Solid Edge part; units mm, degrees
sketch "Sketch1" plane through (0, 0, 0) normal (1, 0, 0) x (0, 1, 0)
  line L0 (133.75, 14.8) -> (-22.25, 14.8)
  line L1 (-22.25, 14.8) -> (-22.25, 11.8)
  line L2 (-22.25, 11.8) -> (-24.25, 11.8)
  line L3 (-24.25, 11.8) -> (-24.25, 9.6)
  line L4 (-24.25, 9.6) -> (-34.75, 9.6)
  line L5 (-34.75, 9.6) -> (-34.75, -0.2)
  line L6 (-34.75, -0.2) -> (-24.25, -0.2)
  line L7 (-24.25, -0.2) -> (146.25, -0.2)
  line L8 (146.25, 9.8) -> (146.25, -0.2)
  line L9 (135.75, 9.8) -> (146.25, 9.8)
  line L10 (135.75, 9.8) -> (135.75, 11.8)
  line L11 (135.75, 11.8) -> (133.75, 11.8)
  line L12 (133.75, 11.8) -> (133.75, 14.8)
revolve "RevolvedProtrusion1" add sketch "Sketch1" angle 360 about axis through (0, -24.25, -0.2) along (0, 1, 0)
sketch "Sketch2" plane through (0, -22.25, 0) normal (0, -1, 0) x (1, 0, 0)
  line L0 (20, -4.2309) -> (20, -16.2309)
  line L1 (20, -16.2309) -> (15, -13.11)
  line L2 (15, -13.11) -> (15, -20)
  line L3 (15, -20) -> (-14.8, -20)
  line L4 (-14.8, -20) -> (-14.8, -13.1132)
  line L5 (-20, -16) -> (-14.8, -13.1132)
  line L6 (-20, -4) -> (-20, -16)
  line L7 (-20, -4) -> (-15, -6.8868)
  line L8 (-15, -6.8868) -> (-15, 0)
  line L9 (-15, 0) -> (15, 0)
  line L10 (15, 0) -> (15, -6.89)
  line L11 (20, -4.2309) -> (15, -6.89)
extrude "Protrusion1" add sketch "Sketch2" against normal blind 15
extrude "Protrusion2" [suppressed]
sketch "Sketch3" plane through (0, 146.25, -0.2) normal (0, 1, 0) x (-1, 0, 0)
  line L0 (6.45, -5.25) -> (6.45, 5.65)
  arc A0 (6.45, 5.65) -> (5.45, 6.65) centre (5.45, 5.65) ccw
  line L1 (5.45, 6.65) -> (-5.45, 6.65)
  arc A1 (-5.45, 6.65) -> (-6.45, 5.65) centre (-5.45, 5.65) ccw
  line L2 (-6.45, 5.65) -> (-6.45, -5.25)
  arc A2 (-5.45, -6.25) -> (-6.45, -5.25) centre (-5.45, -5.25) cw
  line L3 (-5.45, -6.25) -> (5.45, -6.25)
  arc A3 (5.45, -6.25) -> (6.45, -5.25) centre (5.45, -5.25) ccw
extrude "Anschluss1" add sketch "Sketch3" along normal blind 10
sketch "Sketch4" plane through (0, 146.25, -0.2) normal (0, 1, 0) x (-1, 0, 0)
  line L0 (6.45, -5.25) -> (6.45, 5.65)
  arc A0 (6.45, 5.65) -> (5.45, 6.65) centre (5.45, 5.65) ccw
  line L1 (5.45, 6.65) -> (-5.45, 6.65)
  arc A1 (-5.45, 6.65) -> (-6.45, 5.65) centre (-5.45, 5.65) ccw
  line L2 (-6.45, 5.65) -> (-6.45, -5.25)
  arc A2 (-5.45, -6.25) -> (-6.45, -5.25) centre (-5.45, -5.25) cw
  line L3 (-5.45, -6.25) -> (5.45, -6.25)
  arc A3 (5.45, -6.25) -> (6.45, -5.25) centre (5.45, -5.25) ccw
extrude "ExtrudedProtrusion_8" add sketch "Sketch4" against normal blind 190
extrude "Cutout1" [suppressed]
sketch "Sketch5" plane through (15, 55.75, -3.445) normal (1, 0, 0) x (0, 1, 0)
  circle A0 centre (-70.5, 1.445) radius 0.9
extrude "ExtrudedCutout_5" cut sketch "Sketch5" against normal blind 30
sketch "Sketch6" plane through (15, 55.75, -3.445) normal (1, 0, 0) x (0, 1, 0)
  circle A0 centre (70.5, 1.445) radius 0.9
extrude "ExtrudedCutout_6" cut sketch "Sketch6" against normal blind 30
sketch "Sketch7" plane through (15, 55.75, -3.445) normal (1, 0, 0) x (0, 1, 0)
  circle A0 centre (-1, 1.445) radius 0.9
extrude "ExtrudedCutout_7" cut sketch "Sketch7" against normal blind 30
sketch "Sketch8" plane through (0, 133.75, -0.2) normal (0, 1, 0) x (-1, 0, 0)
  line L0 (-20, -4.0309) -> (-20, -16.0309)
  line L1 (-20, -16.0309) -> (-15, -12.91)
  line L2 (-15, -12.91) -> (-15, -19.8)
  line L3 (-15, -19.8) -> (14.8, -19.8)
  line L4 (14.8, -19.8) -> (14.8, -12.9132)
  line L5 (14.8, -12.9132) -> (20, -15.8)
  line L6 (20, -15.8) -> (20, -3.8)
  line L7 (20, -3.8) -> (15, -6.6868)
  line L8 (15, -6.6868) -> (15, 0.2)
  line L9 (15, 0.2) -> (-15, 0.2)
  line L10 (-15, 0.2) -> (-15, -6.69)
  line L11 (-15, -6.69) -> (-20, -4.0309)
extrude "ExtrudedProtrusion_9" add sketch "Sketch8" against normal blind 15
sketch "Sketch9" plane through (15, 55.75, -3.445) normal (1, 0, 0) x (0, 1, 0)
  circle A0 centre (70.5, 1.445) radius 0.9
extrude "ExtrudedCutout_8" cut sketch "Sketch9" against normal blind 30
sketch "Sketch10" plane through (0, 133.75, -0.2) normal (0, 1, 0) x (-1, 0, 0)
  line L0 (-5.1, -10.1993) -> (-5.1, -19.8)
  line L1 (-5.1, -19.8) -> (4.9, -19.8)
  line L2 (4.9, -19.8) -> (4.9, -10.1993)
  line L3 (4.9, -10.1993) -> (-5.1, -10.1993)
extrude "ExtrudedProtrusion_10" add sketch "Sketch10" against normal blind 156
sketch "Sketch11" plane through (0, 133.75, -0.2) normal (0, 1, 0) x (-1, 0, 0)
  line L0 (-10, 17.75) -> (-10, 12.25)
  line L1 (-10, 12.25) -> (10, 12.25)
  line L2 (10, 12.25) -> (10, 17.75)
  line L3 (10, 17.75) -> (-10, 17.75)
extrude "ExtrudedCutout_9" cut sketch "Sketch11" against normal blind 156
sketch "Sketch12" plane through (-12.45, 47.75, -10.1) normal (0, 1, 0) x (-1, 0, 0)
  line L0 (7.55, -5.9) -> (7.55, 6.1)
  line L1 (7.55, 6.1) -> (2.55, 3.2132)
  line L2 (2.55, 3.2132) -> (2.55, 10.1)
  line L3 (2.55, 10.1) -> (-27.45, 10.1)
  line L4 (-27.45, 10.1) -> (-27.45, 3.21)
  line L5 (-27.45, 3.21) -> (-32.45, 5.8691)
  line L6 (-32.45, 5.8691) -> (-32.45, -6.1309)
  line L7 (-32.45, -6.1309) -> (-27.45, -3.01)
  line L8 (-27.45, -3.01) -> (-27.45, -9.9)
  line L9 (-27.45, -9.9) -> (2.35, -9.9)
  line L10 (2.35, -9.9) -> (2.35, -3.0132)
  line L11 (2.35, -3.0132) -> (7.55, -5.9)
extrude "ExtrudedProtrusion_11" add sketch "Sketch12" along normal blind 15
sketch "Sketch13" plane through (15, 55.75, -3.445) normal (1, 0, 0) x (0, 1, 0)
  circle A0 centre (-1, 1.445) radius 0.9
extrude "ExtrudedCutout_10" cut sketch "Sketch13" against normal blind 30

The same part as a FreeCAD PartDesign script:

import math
import FreeCAD as App
import Part
import Sketcher

V = App.Vector
Q = App.Units.Quantity


def add_polygon(sketch, points):
    """Adds a closed chain of lines whose ends are joined by coincident constraints."""
    first, n = sketch.GeometryCount, len(points)
    for a, b in zip(points, points[1:] + points[:1]):
        sketch.addGeometry(Part.LineSegment(App.Vector(*a, 0), App.Vector(*b, 0)), False)
    for i in range(n):
        sketch.addConstraint(Sketcher.Constraint("Coincident", first + i, 2, first + (i + 1) % n, 1))

doc = App.newDocument("Part")
body = doc.addObject("PartDesign::Body", "Body")

# Sketch on YZ plane
sketch1 = doc.addObject("Sketcher::SketchObject", "Sketch")
body.addObject(sketch1)
sketch1.AttachmentSupport = (doc.YZ_Plane, [""])
sketch1.MapMode = "FlatFace"
add_polygon(sketch1, [(133.8, 11.8), (133.8, 14.8), (-22.2, 14.8), (-22.2, 11.8), (-24.2, 11.8), (-24.2, 9.6), (-34.8, 9.6), (-34.8, -0.2), (146.2, -0.2), (146.2, 9.8), (135.8, 9.8), (135.8, 11.8)])  # lines 0-11
sketch1.addGeometry(Part.LineSegment(V(-34.8, -0.2, 0), V(146.2, -0.2, 0)), True)  # axis
sketch1.addConstraint(Sketcher.Constraint("Vertical", 0))
sketch1.addConstraint(Sketcher.Constraint("Horizontal", 1))
sketch1.addConstraint(Sketcher.Constraint("Vertical", 2))
sketch1.addConstraint(Sketcher.Constraint("Horizontal", 3))
sketch1.addConstraint(Sketcher.Constraint("Vertical", 4))
sketch1.addConstraint(Sketcher.Constraint("Horizontal", 5))
sketch1.addConstraint(Sketcher.Constraint("Vertical", 6))
sketch1.addConstraint(Sketcher.Constraint("Horizontal", 7))
sketch1.addConstraint(Sketcher.Constraint("Vertical", 8))
sketch1.addConstraint(Sketcher.Constraint("Horizontal", 9))
sketch1.addConstraint(Sketcher.Constraint("Vertical", 10))
sketch1.addConstraint(Sketcher.Constraint("Horizontal", 11))
sketch1.addConstraint(Sketcher.Constraint("Horizontal", 12))
sketch1.addConstraint(Sketcher.Constraint("Coincident", 12, 1, 6, 2))
sketch1.addConstraint(Sketcher.Constraint("Horizontal", 3, 2, 10, 2))
sketch1.addConstraint(Sketcher.Constraint("Vertical", 8, 2, 12, 2))
sketch1.addConstraint(Sketcher.Constraint("Equal", 5, 9))
sketch1.addConstraint(Sketcher.Constraint("Equal", 3, 11))
sketch1.addConstraint(Sketcher.Constraint("Equal", 11, 10))
sketch1.addConstraint(Sketcher.Constraint("DistanceX", 1, 2, 1, 1, 156.0))
sketch1.addConstraint(Sketcher.Constraint("DistanceX", 3, 2, 3, 1, 2.0))
sketch1.addConstraint(Sketcher.Constraint("DistanceX", 7, 1, 7, 2, 181.0))
sketch1.addConstraint(Sketcher.Constraint("DistanceY", 0, 1, 0, 2, 3.0))
sketch1.addConstraint(Sketcher.Constraint("DistanceY", 8, 1, 8, 2, 10.0))
sketch1.addConstraint(Sketcher.Constraint("DistanceY", 4, 2, 4, 1, 2.2))
sketch1.addConstraint(Sketcher.Constraint("DistanceY", -1, 1, 0, 2, 14.8))
sketch1.addConstraint(Sketcher.Constraint("DistanceX", -1, 1, 0, 2, 133.75))
revolution = doc.addObject("PartDesign::Revolution", "Revolution")
body.addObject(revolution)
revolution.Profile = sketch1
revolution.ReferenceAxis = (sketch1, ["Axis0"])
revolution.Angle = 360

# Sketch on XZ plane
sketch2 = doc.addObject("Sketcher::SketchObject", "Sketch001")
body.addObject(sketch2)
sketch2.AttachmentSupport = (doc.XZ_Plane, [""])
sketch2.MapMode = "FlatFace"
sketch2.AttachmentOffset = App.Placement(V(0, 0, 22.25), App.Rotation())
add_polygon(sketch2, [(20, -16), (20, -4), (15, -7), (15, 0), (-15, 0), (-15, -7), (-20, -4), (-20, -16), (-15, -13), (-15, -20), (15, -20), (15, -13)])  # lines 0-11
sketch2.addConstraint(Sketcher.Constraint("Vertical", 0))
sketch2.addConstraint(Sketcher.Constraint("Vertical", 2))
sketch2.addConstraint(Sketcher.Constraint("Horizontal", 3))
sketch2.addConstraint(Sketcher.Constraint("Vertical", 4))
sketch2.addConstraint(Sketcher.Constraint("Vertical", 6))
sketch2.addConstraint(Sketcher.Constraint("Vertical", 8))
sketch2.addConstraint(Sketcher.Constraint("Horizontal", 9))
sketch2.addConstraint(Sketcher.Constraint("Vertical", 10))
sketch2.addConstraint(Sketcher.Constraint("Symmetric", 2, 2, 3, 2, -1, 1))
sketch2.addConstraint(Sketcher.Constraint("Vertical", 2, 2, 9, 2))
sketch2.addConstraint(Sketcher.Constraint("Equal", 0, 6))
sketch2.addConstraint(Sketcher.Constraint("Equal", 4, 8))
sketch2.addConstraint(Sketcher.Constraint("Equal", 2, 10))
sketch2.addConstraint(Sketcher.Constraint("DistanceX", 3, 2, 3, 1, 30.0))
sketch2.addConstraint(Sketcher.Constraint("DistanceY", 0, 1, 0, 2, 12.0))
sketch2.addConstraint(Sketcher.Constraint("Angle", 5, Q("149.9996 deg")))
sketch2.addConstraint(Sketcher.Constraint("DistanceX", 9, 1, 9, 2, 29.8))
sketch2.addConstraint(Sketcher.Constraint("DistanceX", -1, 1, 0, 2, 20.0))
sketch2.addConstraint(Sketcher.Constraint("DistanceX", 5, 2, -1, 1, 20.0))
sketch2.addConstraint(Sketcher.Constraint("DistanceY", 5, 2, -1, 1, 4.0))
sketch2.addConstraint(Sketcher.Constraint("DistanceY", 8, 2, -1, 1, 20.0))
sketch2.addConstraint(Sketcher.Constraint("DistanceY", 2, 1, 2, 2, 6.89))
sketch2.addConstraint(Sketcher.Constraint("Distance", 1, 5.663))
pad1 = doc.addObject("PartDesign::Pad", "Pad")
body.addObject(pad1)
pad1.Profile = sketch2
pad1.Length = 15
pad1.Reversed = True

# Sketch on XZ plane
sketch3 = doc.addObject("Sketcher::SketchObject", "Sketch002")
body.addObject(sketch3)
sketch3.AttachmentSupport = (doc.XZ_Plane, [""])
sketch3.MapMode = "FlatFace"
sketch3.AttachmentOffset = App.Placement(V(0, 0, -146.25), App.Rotation())
sketch3.addGeometry(Part.ArcOfCircle(Part.Circle(V(-5.5, -5.5, 0), V(0, 0, 1), 1), math.radians(180), math.radians(270)), False)
sketch3.addGeometry(Part.LineSegment(V(-6.5, -5.5, 0), V(-6.5, 5.5, 0)), False)
sketch3.addGeometry(Part.ArcOfCircle(Part.Circle(V(-5.5, 5.5, 0), V(0, 0, 1), 1), math.radians(90), math.radians(180)), False)
sketch3.addGeometry(Part.LineSegment(V(-5.5, 6.5, 0), V(5.5, 6.5, 0)), False)
sketch3.addGeometry(Part.ArcOfCircle(Part.Circle(V(5.5, 5.5, 0), V(0, 0, 1), 1), math.radians(0), math.radians(90)), False)
sketch3.addGeometry(Part.LineSegment(V(6.5, 5.5, 0), V(6.5, -5.5, 0)), False)
sketch3.addGeometry(Part.ArcOfCircle(Part.Circle(V(5.5, -5.5, 0), V(0, 0, 1), 1), math.radians(-90), math.radians(0)), False)
sketch3.addGeometry(Part.LineSegment(V(5.5, -6.5, 0), V(-5.5, -6.5, 0)), False)
sketch3.addConstraint(Sketcher.Constraint("Tangent", 0, 1, 1, 1))
sketch3.addConstraint(Sketcher.Constraint("Tangent", 1, 2, 2, 2))
sketch3.addConstraint(Sketcher.Constraint("Tangent", 2, 1, 3, 1))
sketch3.addConstraint(Sketcher.Constraint("Tangent", 3, 2, 4, 2))
sketch3.addConstraint(Sketcher.Constraint("Tangent", 4, 1, 5, 1))
sketch3.addConstraint(Sketcher.Constraint("Tangent", 5, 2, 6, 2))
sketch3.addConstraint(Sketcher.Constraint("Tangent", 6, 1, 7, 1))
sketch3.addConstraint(Sketcher.Constraint("Tangent", 7, 2, 0, 2))
sketch3.addConstraint(Sketcher.Constraint("Vertical", 1))
sketch3.addConstraint(Sketcher.Constraint("Horizontal", 3))
sketch3.addConstraint(Sketcher.Constraint("Vertical", 5))
sketch3.addConstraint(Sketcher.Constraint("Horizontal", 7))
sketch3.addConstraint(Sketcher.Constraint("Equal", 0, 2))
sketch3.addConstraint(Sketcher.Constraint("Equal", 2, 4))
sketch3.addConstraint(Sketcher.Constraint("Equal", 4, 6))
sketch3.addConstraint(Sketcher.Constraint("Symmetric", 0, 3, 4, 3, -1, 1))
sketch3.addConstraint(Sketcher.Constraint("Equal", 7, 1))
sketch3.addConstraint(Sketcher.Constraint("Radius", 0, 1.0))
sketch3.addConstraint(Sketcher.Constraint("DistanceX", 3, 1, 3, 2, 10.9))
pad2 = doc.addObject("PartDesign::Pad", "Pad001")
body.addObject(pad2)
pad2.Profile = sketch3
pad2.Length = 10
pad2.Reversed = True

# Sketch on XZ plane
sketch4 = doc.addObject("Sketcher::SketchObject", "Sketch003")
body.addObject(sketch4)
sketch4.AttachmentSupport = (doc.XZ_Plane, [""])
sketch4.MapMode = "FlatFace"
sketch4.AttachmentOffset = App.Placement(V(0, 0, -146.25), App.Rotation())
sketch4.addGeometry(Part.ArcOfCircle(Part.Circle(V(-5.5, -5.5, 0), V(0, 0, 1), 1), math.radians(180), math.radians(270)), False)
sketch4.addGeometry(Part.LineSegment(V(-6.5, -5.5, 0), V(-6.5, 5.5, 0)), False)
sketch4.addGeometry(Part.ArcOfCircle(Part.Circle(V(-5.5, 5.5, 0), V(0, 0, 1), 1), math.radians(90), math.radians(180)), False)
sketch4.addGeometry(Part.LineSegment(V(-5.5, 6.5, 0), V(5.5, 6.5, 0)), False)
sketch4.addGeometry(Part.ArcOfCircle(Part.Circle(V(5.5, 5.5, 0), V(0, 0, 1), 1), math.radians(0), math.radians(90)), False)
sketch4.addGeometry(Part.LineSegment(V(6.5, 5.5, 0), V(6.5, -5.5, 0)), False)
sketch4.addGeometry(Part.ArcOfCircle(Part.Circle(V(5.5, -5.5, 0), V(0, 0, 1), 1), math.radians(-90), math.radians(0)), False)
sketch4.addGeometry(Part.LineSegment(V(5.5, -6.5, 0), V(-5.5, -6.5, 0)), False)
sketch4.addConstraint(Sketcher.Constraint("Tangent", 0, 1, 1, 1))
sketch4.addConstraint(Sketcher.Constraint("Tangent", 1, 2, 2, 2))
sketch4.addConstraint(Sketcher.Constraint("Tangent", 2, 1, 3, 1))
sketch4.addConstraint(Sketcher.Constraint("Tangent", 3, 2, 4, 2))
sketch4.addConstraint(Sketcher.Constraint("Tangent", 4, 1, 5, 1))
sketch4.addConstraint(Sketcher.Constraint("Tangent", 5, 2, 6, 2))
sketch4.addConstraint(Sketcher.Constraint("Tangent", 6, 1, 7, 1))
sketch4.addConstraint(Sketcher.Constraint("Tangent", 7, 2, 0, 2))
sketch4.addConstraint(Sketcher.Constraint("Vertical", 1))
sketch4.addConstraint(Sketcher.Constraint("Horizontal", 3))
sketch4.addConstraint(Sketcher.Constraint("Vertical", 5))
sketch4.addConstraint(Sketcher.Constraint("Horizontal", 7))
sketch4.addConstraint(Sketcher.Constraint("Equal", 0, 2))
sketch4.addConstraint(Sketcher.Constraint("Equal", 2, 4))
sketch4.addConstraint(Sketcher.Constraint("Equal", 4, 6))
sketch4.addConstraint(Sketcher.Constraint("Symmetric", 0, 3, 4, 3, -1, 1))
sketch4.addConstraint(Sketcher.Constraint("Equal", 7, 1))
sketch4.addConstraint(Sketcher.Constraint("Radius", 0, 1.0))
sketch4.addConstraint(Sketcher.Constraint("DistanceX", 3, 1, 3, 2, 10.9))
pad3 = doc.addObject("PartDesign::Pad", "Pad002")
body.addObject(pad3)
pad3.Profile = sketch4
pad3.Length = 190

# Sketch on YZ plane
sketch5 = doc.addObject("Sketcher::SketchObject", "Sketch004")
body.addObject(sketch5)
sketch5.AttachmentSupport = (doc.YZ_Plane, [""])
sketch5.MapMode = "FlatFace"
sketch5.AttachmentOffset = App.Placement(V(0, 0, 15), App.Rotation())
sketch5.addGeometry(Part.Circle(V(-14.8, -2, 0), V(0, 0, 1), 0.9), False)
sketch5.addConstraint(Sketcher.Constraint("Diameter", 0, 1.8))
sketch5.addConstraint(Sketcher.Constraint("DistanceY", 0, 3, -1, 1, 2.0))
sketch5.addConstraint(Sketcher.Constraint("DistanceX", 0, 3, -1, 1, 14.75))
pocket1 = doc.addObject("PartDesign::Pocket", "Pocket")
body.addObject(pocket1)
pocket1.Profile = sketch5
pocket1.Length = 30

# Sketch on YZ plane
sketch6 = doc.addObject("Sketcher::SketchObject", "Sketch005")
body.addObject(sketch6)
sketch6.AttachmentSupport = (doc.YZ_Plane, [""])
sketch6.MapMode = "FlatFace"
sketch6.AttachmentOffset = App.Placement(V(0, 0, 15), App.Rotation())
sketch6.addGeometry(Part.Circle(V(126.2, -2, 0), V(0, 0, 1), 0.9), False)
sketch6.addConstraint(Sketcher.Constraint("Diameter", 0, 1.8))
sketch6.addConstraint(Sketcher.Constraint("DistanceY", 0, 3, -1, 1, 2.0))
sketch6.addConstraint(Sketcher.Constraint("DistanceX", -1, 1, 0, 3, 126.25))
pocket2 = doc.addObject("PartDesign::Pocket", "Pocket001")
body.addObject(pocket2)
pocket2.Profile = sketch6
pocket2.Length = 30

# Sketch on YZ plane
sketch7 = doc.addObject("Sketcher::SketchObject", "Sketch006")
body.addObject(sketch7)
sketch7.AttachmentSupport = (doc.YZ_Plane, [""])
sketch7.MapMode = "FlatFace"
sketch7.AttachmentOffset = App.Placement(V(0, 0, 15), App.Rotation())
sketch7.addGeometry(Part.Circle(V(54.8, -2, 0), V(0, 0, 1), 0.9), False)
sketch7.addConstraint(Sketcher.Constraint("Diameter", 0, 1.8))
sketch7.addConstraint(Sketcher.Constraint("DistanceY", 0, 3, -1, 1, 2.0))
sketch7.addConstraint(Sketcher.Constraint("DistanceX", -1, 1, 0, 3, 54.75))
pocket3 = doc.addObject("PartDesign::Pocket", "Pocket002")
body.addObject(pocket3)
pocket3.Profile = sketch7
pocket3.Length = 30

# Sketch on XZ plane
sketch8 = doc.addObject("Sketcher::SketchObject", "Sketch007")
body.addObject(sketch8)
sketch8.AttachmentSupport = (doc.XZ_Plane, [""])
sketch8.MapMode = "FlatFace"
sketch8.AttachmentOffset = App.Placement(V(0, 0, -133.75), App.Rotation())
add_polygon(sketch8, [(15, -7), (20, -4), (20, -16), (15, -13), (15, -20), (-15, -20), (-15, -13), (-20, -16), (-20, -4), (-15, -7), (-15, 0), (15, 0)])  # lines 0-11
sketch8.addConstraint(Sketcher.Constraint("Vertical", 1))
sketch8.addConstraint(Sketcher.Constraint("Vertical", 3))
sketch8.addConstraint(Sketcher.Constraint("Horizontal", 4))
sketch8.addConstraint(Sketcher.Constraint("Vertical", 5))
sketch8.addConstraint(Sketcher.Constraint("Vertical", 7))
sketch8.addConstraint(Sketcher.Constraint("Vertical", 9))
sketch8.addConstraint(Sketcher.Constraint("Horizontal", 10))
sketch8.addConstraint(Sketcher.Constraint("Vertical", 11))
sketch8.addConstraint(Sketcher.Constraint("Symmetric", 9, 2, 10, 2, -1, 1))
sketch8.addConstraint(Sketcher.Constraint("Vertical", 3, 2, 10, 2))
sketch8.addConstraint(Sketcher.Constraint("Equal", 1, 7))
sketch8.addConstraint(Sketcher.Constraint("Equal", 5, 9))
sketch8.addConstraint(Sketcher.Constraint("Equal", 3, 11))
sketch8.addConstraint(Sketcher.Constraint("DistanceX", 10, 1, 10, 2, 30.0))
sketch8.addConstraint(Sketcher.Constraint("DistanceY", 1, 2, 1, 1, 12.0))
sketch8.addConstraint(Sketcher.Constraint("Angle", 8, Q("-30.0004 deg")))
sketch8.addConstraint(Sketcher.Constraint("DistanceX", 4, 2, 4, 1, 29.8))
sketch8.addConstraint(Sketcher.Constraint("DistanceX", -1, 1, 0, 2, 20.0))
sketch8.addConstraint(Sketcher.Constraint("DistanceY", 3, 2, -1, 1, 20.0))
sketch8.addConstraint(Sketcher.Constraint("DistanceX", 6, 2, -1, 1, 20.0))
sketch8.addConstraint(Sketcher.Constraint("DistanceY", 6, 2, -1, 1, 16.0))
sketch8.addConstraint(Sketcher.Constraint("DistanceY", 3, 2, 3, 1, 6.89))
sketch8.addConstraint(Sketcher.Constraint("Distance", 0, 5.663))
pad4 = doc.addObject("PartDesign::Pad", "Pad003")
body.addObject(pad4)
pad4.Profile = sketch8
pad4.Length = 15

# Sketch on YZ plane
sketch9 = doc.addObject("Sketcher::SketchObject", "Sketch008")
body.addObject(sketch9)
sketch9.AttachmentSupport = (doc.YZ_Plane, [""])
sketch9.MapMode = "FlatFace"
sketch9.AttachmentOffset = App.Placement(V(0, 0, 15), App.Rotation())
sketch9.addGeometry(Part.Circle(V(126.2, -2, 0), V(0, 0, 1), 0.9), False)
sketch9.addConstraint(Sketcher.Constraint("Diameter", 0, 1.8))
sketch9.addConstraint(Sketcher.Constraint("DistanceY", 0, 3, -1, 1, 2.0))
sketch9.addConstraint(Sketcher.Constraint("DistanceX", -1, 1, 0, 3, 126.25))
pocket4 = doc.addObject("PartDesign::Pocket", "Pocket003")
body.addObject(pocket4)
pocket4.Profile = sketch9
pocket4.Length = 30

# Sketch on XZ plane
sketch10 = doc.addObject("Sketcher::SketchObject", "Sketch009")
body.addObject(sketch10)
sketch10.AttachmentSupport = (doc.XZ_Plane, [""])
sketch10.MapMode = "FlatFace"
sketch10.AttachmentOffset = App.Placement(V(0, 0, -133.75), App.Rotation())
add_polygon(sketch10, [(-5, -10), (5, -10), (5, -20), (-5, -20)])  # lines 0-3
sketch10.addConstraint(Sketcher.Constraint("Horizontal", 0))
sketch10.addConstraint(Sketcher.Constraint("Vertical", 1))
sketch10.addConstraint(Sketcher.Constraint("Horizontal", 2))
sketch10.addConstraint(Sketcher.Constraint("Vertical", 3))
sketch10.addConstraint(Sketcher.Constraint("DistanceX", 0, 1, 0, 2, 10.0))
sketch10.addConstraint(Sketcher.Constraint("DistanceY", 1, 2, -1, 1, 20.0))
sketch10.addConstraint(Sketcher.Constraint("DistanceX", -1, 1, 0, 2, 5.1))
sketch10.addConstraint(Sketcher.Constraint("DistanceY", 1, 2, 1, 1, 9.6007))
pad5 = doc.addObject("PartDesign::Pad", "Pad004")
body.addObject(pad5)
pad5.Profile = sketch10
pad5.Length = 156

# Sketch on XZ plane
sketch11 = doc.addObject("Sketcher::SketchObject", "Sketch010")
body.addObject(sketch11)
sketch11.AttachmentSupport = (doc.XZ_Plane, [""])
sketch11.MapMode = "FlatFace"
sketch11.AttachmentOffset = App.Placement(V(0, 0, -133.75), App.Rotation())
add_polygon(sketch11, [(-10, 18), (10, 18), (10, 12), (-10, 12)])  # lines 0-3
sketch11.addConstraint(Sketcher.Constraint("Horizontal", 0))
sketch11.addConstraint(Sketcher.Constraint("Vertical", 1))
sketch11.addConstraint(Sketcher.Constraint("Horizontal", 2))
sketch11.addConstraint(Sketcher.Constraint("Vertical", 3))
sketch11.addConstraint(Sketcher.Constraint("DistanceX", 0, 1, 0, 2, 20.0))
sketch11.addConstraint(Sketcher.Constraint("DistanceY", 1, 2, 1, 1, 5.5))
sketch11.addConstraint(Sketcher.Constraint("DistanceX", -1, 1, 0, 2, 10.0))
sketch11.addConstraint(Sketcher.Constraint("DistanceY", -1, 1, 0, 2, 17.55))
pocket5 = doc.addObject("PartDesign::Pocket", "Pocket004")
body.addObject(pocket5)
pocket5.Profile = sketch11
pocket5.Length = 156
pocket5.Reversed = True

# Sketch on XZ plane
sketch12 = doc.addObject("Sketcher::SketchObject", "Sketch011")
body.addObject(sketch12)
sketch12.AttachmentSupport = (doc.XZ_Plane, [""])
sketch12.MapMode = "FlatFace"
sketch12.AttachmentOffset = App.Placement(V(0, 0, -47.75), App.Rotation())
add_polygon(sketch12, [(-15, -13), (-20, -16), (-20, -4), (-15, -7), (-15, 0), (15, 0), (15, -7), (20, -4), (20, -16), (15, -13), (15, -20), (-15, -20)])  # lines 0-11
sketch12.addConstraint(Sketcher.Constraint("Vertical", 1))
sketch12.addConstraint(Sketcher.Constraint("Vertical", 3))
sketch12.addConstraint(Sketcher.Constraint("Horizontal", 4))
sketch12.addConstraint(Sketcher.Constraint("Vertical", 5))
sketch12.addConstraint(Sketcher.Constraint("Vertical", 7))
sketch12.addConstraint(Sketcher.Constraint("Vertical", 9))
sketch12.addConstraint(Sketcher.Constraint("Horizontal", 10))
sketch12.addConstraint(Sketcher.Constraint("Vertical", 11))
sketch12.addConstraint(Sketcher.Constraint("Symmetric", 3, 2, 4, 2, -1, 1))
sketch12.addConstraint(Sketcher.Constraint("Vertical", 5, 2, 8, 2))
sketch12.addConstraint(Sketcher.Constraint("Equal", 1, 7))
sketch12.addConstraint(Sketcher.Constraint("Equal", 5, 9))
sketch12.addConstraint(Sketcher.Constraint("Equal", 3, 11))
sketch12.addConstraint(Sketcher.Constraint("DistanceX", 4, 1, 4, 2, 30.0))
sketch12.addConstraint(Sketcher.Constraint("DistanceY", 1, 1, 1, 2, 12.0))
sketch12.addConstraint(Sketcher.Constraint("Angle", 2, Q("-30.0004 deg")))
sketch12.addConstraint(Sketcher.Constraint("DistanceX", 10, 2, 10, 1, 29.8))
sketch12.addConstraint(Sketcher.Constraint("DistanceX", 0, 2, -1, 1, 20.0))
sketch12.addConstraint(Sketcher.Constraint("DistanceY", 0, 2, -1, 1, 16.0))
sketch12.addConstraint(Sketcher.Constraint("DistanceX", -1, 1, 6, 2, 20.0))
sketch12.addConstraint(Sketcher.Constraint("DistanceY", 9, 2, -1, 1, 20.0))
sketch12.addConstraint(Sketcher.Constraint("DistanceY", 5, 2, 5, 1, 6.89))
sketch12.addConstraint(Sketcher.Constraint("Distance", 6, 5.663))
pad6 = doc.addObject("PartDesign::Pad", "Pad005")
body.addObject(pad6)
pad6.Profile = sketch12
pad6.Length = 15
pad6.Reversed = True

# Sketch on YZ plane
sketch13 = doc.addObject("Sketcher::SketchObject", "Sketch012")
body.addObject(sketch13)
sketch13.AttachmentSupport = (doc.YZ_Plane, [""])
sketch13.MapMode = "FlatFace"
sketch13.AttachmentOffset = App.Placement(V(0, 0, 15), App.Rotation())
sketch13.addGeometry(Part.Circle(V(54.8, -2, 0), V(0, 0, 1), 0.9), False)
sketch13.addConstraint(Sketcher.Constraint("Diameter", 0, 1.8))
sketch13.addConstraint(Sketcher.Constraint("DistanceY", 0, 3, -1, 1, 2.0))
sketch13.addConstraint(Sketcher.Constraint("DistanceX", -1, 1, 0, 3, 54.75))
pocket6 = doc.addObject("PartDesign::Pocket", "Pocket005")
body.addObject(pocket6)
pocket6.Profile = sketch13
pocket6.Length = 30

doc.recompute()
